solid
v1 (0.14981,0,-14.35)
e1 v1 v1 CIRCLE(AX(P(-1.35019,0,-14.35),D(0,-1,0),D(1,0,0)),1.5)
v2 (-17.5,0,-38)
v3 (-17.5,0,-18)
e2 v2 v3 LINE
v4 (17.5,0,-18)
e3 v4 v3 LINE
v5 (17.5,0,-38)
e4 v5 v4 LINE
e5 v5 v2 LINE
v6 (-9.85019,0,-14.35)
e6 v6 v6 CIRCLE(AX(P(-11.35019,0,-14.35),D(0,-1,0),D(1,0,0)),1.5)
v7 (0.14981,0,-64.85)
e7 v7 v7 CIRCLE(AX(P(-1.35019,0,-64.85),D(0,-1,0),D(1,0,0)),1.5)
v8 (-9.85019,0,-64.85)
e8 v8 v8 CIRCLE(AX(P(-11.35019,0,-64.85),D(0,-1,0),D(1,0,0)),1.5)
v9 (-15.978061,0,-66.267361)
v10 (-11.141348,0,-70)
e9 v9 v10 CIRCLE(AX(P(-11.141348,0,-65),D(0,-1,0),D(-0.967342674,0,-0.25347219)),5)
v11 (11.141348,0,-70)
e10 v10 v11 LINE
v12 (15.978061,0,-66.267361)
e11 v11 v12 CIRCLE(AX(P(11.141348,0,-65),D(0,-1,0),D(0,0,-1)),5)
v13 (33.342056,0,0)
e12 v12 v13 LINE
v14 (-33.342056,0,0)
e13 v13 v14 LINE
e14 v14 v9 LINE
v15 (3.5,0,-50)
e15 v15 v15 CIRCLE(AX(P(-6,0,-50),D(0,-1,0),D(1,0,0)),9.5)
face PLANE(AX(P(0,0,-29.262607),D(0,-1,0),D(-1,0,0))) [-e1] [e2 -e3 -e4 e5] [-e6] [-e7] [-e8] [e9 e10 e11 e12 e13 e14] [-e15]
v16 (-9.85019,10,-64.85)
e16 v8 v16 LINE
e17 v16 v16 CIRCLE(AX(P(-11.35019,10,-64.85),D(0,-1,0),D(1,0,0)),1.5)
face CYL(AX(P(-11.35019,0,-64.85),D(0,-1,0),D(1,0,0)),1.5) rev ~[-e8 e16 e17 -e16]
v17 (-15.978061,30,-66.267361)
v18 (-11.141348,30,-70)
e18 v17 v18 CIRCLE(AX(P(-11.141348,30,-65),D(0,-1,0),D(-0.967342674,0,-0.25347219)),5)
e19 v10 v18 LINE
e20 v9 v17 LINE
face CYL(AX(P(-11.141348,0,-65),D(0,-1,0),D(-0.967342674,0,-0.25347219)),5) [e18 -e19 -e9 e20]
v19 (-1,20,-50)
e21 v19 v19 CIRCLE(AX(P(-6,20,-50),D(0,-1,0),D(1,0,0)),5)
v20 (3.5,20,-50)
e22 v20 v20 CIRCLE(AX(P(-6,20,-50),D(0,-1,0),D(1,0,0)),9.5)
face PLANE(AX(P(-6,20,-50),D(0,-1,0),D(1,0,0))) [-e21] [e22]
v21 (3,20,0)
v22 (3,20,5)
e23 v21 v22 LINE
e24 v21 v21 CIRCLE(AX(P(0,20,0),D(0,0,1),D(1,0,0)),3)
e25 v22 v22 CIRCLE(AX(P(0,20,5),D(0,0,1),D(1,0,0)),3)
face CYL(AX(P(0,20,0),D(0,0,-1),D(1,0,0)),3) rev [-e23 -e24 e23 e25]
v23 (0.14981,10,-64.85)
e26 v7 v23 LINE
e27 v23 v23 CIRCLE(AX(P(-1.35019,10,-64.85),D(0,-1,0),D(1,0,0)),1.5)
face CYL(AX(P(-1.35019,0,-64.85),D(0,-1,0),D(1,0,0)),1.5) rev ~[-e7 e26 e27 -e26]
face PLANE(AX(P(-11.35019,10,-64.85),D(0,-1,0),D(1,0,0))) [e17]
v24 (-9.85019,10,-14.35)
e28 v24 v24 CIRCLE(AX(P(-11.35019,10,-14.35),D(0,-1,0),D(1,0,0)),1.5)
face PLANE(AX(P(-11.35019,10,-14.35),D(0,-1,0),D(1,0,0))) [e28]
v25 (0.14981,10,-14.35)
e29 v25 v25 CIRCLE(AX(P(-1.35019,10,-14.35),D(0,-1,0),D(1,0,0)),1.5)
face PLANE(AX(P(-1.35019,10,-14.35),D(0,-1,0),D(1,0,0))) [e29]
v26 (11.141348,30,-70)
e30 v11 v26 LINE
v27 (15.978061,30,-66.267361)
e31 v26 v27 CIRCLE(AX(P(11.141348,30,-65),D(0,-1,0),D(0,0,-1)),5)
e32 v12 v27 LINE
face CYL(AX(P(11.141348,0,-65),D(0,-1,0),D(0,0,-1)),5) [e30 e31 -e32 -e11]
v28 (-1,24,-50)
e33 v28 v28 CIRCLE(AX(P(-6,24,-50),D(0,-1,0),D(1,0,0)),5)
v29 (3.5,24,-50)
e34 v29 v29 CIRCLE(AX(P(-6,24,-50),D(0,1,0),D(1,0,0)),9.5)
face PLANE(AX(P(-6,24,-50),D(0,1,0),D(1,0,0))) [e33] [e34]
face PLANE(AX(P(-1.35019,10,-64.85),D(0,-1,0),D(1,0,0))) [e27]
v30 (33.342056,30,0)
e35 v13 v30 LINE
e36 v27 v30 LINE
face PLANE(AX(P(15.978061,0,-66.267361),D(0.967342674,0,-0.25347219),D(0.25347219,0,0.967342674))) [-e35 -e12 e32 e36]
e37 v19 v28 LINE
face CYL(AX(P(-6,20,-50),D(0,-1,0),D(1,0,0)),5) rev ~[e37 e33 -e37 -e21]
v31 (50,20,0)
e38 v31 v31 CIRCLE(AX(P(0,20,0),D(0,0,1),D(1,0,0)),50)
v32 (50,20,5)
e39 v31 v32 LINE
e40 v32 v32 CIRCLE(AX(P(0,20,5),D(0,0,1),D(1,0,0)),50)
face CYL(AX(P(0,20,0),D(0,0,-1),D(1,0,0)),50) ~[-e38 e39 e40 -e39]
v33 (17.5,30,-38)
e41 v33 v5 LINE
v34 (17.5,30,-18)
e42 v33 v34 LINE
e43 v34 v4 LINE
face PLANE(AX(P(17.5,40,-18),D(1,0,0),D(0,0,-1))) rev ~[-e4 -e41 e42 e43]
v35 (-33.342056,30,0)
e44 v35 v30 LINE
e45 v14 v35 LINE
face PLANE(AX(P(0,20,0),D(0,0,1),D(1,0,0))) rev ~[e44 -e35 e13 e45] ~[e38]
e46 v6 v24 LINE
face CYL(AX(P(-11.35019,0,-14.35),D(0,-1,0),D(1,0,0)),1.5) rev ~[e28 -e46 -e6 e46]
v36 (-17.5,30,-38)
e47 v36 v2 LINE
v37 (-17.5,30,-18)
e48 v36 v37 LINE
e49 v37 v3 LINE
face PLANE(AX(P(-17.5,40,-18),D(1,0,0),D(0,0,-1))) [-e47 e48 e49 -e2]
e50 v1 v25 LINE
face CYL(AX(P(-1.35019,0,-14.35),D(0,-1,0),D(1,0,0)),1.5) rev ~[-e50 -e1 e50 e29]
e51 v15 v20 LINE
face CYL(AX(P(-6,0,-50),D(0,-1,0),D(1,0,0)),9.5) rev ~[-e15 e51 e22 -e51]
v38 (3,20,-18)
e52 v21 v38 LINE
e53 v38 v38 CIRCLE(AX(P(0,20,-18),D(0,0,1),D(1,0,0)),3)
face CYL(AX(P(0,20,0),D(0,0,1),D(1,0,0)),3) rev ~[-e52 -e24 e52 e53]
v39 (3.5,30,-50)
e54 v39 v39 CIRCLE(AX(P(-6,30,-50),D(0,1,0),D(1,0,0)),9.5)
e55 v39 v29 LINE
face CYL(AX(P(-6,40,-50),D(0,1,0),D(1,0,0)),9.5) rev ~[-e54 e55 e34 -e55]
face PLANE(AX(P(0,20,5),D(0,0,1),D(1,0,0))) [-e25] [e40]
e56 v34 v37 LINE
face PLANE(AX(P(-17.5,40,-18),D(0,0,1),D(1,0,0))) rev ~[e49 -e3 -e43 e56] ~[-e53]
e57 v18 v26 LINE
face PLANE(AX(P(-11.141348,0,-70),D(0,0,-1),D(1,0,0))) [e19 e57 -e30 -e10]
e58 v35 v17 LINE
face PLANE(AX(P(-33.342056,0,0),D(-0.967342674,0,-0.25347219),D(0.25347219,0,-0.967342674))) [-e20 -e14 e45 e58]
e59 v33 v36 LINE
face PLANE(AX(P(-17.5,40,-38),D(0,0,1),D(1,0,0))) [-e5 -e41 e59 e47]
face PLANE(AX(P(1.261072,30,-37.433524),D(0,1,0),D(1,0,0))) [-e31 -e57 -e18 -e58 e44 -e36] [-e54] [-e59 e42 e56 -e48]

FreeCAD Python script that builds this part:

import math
import FreeCAD as App
import Part
import Sketcher
Q = App.Units.Quantity

doc = App.newDocument("Part")
body = doc.addObject("PartDesign::Body", "Body")

# Sketch on XZ plane
sketch1 = doc.addObject("Sketcher::SketchObject", "Sketch")
body.addObject(sketch1)
sketch1.AttachmentSupport = (doc.XZ_Plane, [""])
sketch1.MapMode = "FlatFace"
sketch1.addGeometry([
    Part.LineSegment(App.Vector(11, -70, 0), App.Vector(-11, -70, 0)),  # 0
    Part.ArcOfCircle(Part.Circle(App.Vector(-11, -65, 0), App.Vector(0, 0, 1), 5), math.radians(-165), math.radians(-90)),  # 1
    Part.LineSegment(App.Vector(-16, -66, 0), App.Vector(-33, 0, 0)),  # 2
    Part.LineSegment(App.Vector(-33, 0, 0), App.Vector(33, 0, 0)),  # 3
    Part.LineSegment(App.Vector(33, 0, 0), App.Vector(16, -66, 0)),  # 4
    Part.ArcOfCircle(Part.Circle(App.Vector(11, -65, 0), App.Vector(0, 0, 1), 5), math.radians(-90), math.radians(-15)),  # 5
], False)
sketch1.addConstraint([
    Sketcher.Constraint("Tangent", 0, 2, 1, 2),
    Sketcher.Constraint("Tangent", 1, 1, 2, 1),
    Sketcher.Constraint("Coincident", 2, 2, 3, 1),
    Sketcher.Constraint("Coincident", 3, 2, 4, 1),
    Sketcher.Constraint("Tangent", 4, 2, 5, 2),
    Sketcher.Constraint("Tangent", 5, 1, 0, 1),
    Sketcher.Constraint("Horizontal", 0),
    Sketcher.Constraint("Horizontal", 3),
    Sketcher.Constraint("Equal", 1, 5),
    Sketcher.Constraint("Symmetric", 2, 2, 3, 2, -1, 1),
    Sketcher.Constraint("Horizontal", 1, 1, 4, 2),
    Sketcher.Constraint("Radius", 1, Q("5 mm")),
    Sketcher.Constraint("DistanceY", 1, 3, -1, 1, Q("65 mm")),
    Sketcher.Constraint("DistanceX", 3, 1, 3, 2, Q("66.684112 mm")),
    Sketcher.Constraint("DistanceX", 0, 2, 0, 1, Q("22.282695 mm")),
])
pad1 = doc.addObject("PartDesign::Pad", "Pad")
body.addObject(pad1)
pad1.Profile = sketch1
pad1.Length = 40
pad1.Reversed = True

# Sketch on XZ plane
sketch2 = doc.addObject("Sketcher::SketchObject", "Sketch001")
body.addObject(sketch2)
sketch2.AttachmentSupport = (doc.XZ_Plane, [""])
sketch2.MapMode = "FlatFace"
sketch2.addGeometry(Part.Circle(App.Vector(-6, -50, 0), App.Vector(0, 0, 1), 10), False)
sketch2.addConstraint([
    Sketcher.Constraint("Diameter", 0, Q("19 mm")),
    Sketcher.Constraint("DistanceX", 0, 3, -1, 1, Q("6 mm")),
    Sketcher.Constraint("DistanceY", 0, 3, -1, 1, Q("50 mm")),
])
pocket1 = doc.addObject("PartDesign::Pocket", "Pocket")
body.addObject(pocket1)
pocket1.Profile = sketch2
pocket1.Length = 20

# Sketch on XZ plane
sketch3 = doc.addObject("Sketcher::SketchObject", "Sketch002")
body.addObject(sketch3)
sketch3.AttachmentSupport = (doc.XZ_Plane, [""])
sketch3.MapMode = "FlatFace"
sketch3.AttachmentOffset = App.Placement(App.Vector(0, 0, -20), App.Rotation())
sketch3.addGeometry(Part.Circle(App.Vector(-6, -50, 0), App.Vector(0, 0, 1), 5), False)
sketch3.addConstraint([
    Sketcher.Constraint("Diameter", 0, Q("10 mm")),
    Sketcher.Constraint("DistanceX", 0, 3, -1, 1, Q("6 mm")),
    Sketcher.Constraint("DistanceY", 0, 3, -1, 1, Q("50 mm")),
])
pocket2 = doc.addObject("PartDesign::Pocket", "Pocket001")
body.addObject(pocket2)
pocket2.Profile = sketch3
pocket2.Type = "ThroughAll"

# Sketch on XZ plane
sketch4 = doc.addObject("Sketcher::SketchObject", "Sketch003")
body.addObject(sketch4)
sketch4.AttachmentSupport = (doc.XZ_Plane, [""])
sketch4.MapMode = "FlatFace"
sketch4.AttachmentOffset = App.Placement(App.Vector(0, 0, -40), App.Rotation())
sketch4.addGeometry(Part.Circle(App.Vector(-6, -50, 0), App.Vector(0, 0, 1), 10), False)
sketch4.addConstraint([
    Sketcher.Constraint("Diameter", 0, Q("19 mm")),
    Sketcher.Constraint("DistanceX", 0, 3, -1, 1, Q("6 mm")),
    Sketcher.Constraint("DistanceY", 0, 3, -1, 1, Q("50 mm")),
])
pocket3 = doc.addObject("PartDesign::Pocket", "Pocket002")
body.addObject(pocket3)
pocket3.Profile = sketch4
pocket3.Length = 16
pocket3.Reversed = True

# Sketch on XZ plane
sketch5 = doc.addObject("Sketcher::SketchObject", "Sketch004")
body.addObject(sketch5)
sketch5.AttachmentSupport = (doc.XZ_Plane, [""])
sketch5.MapMode = "FlatFace"
sketch5.AttachmentOffset = App.Placement(App.Vector(0, 0, -40), App.Rotation())
sketch5.addGeometry([
    Part.LineSegment(App.Vector(-18, -38, 0), App.Vector(-18, -18, 0)),
    Part.LineSegment(App.Vector(-18, -18, 0), App.Vector(18, -18, 0)),
    Part.LineSegment(App.Vector(18, -18, 0), App.Vector(18, -38, 0)),
    Part.LineSegment(App.Vector(18, -38, 0), App.Vector(-18, -38, 0)),
], False)
sketch5.addConstraint([
    Sketcher.Constraint("Coincident", 0, 2, 1, 1),
    Sketcher.Constraint("Coincident", 1, 2, 2, 1),
    Sketcher.Constraint("Coincident", 2, 2, 3, 1),
    Sketcher.Constraint("Coincident", 3, 2, 0, 1),
    Sketcher.Constraint("Vertical", 0),
    Sketcher.Constraint("Horizontal", 1),
    Sketcher.Constraint("Vertical", 2),
    Sketcher.Constraint("Horizontal", 3),
    Sketcher.Constraint("DistanceX", 1, 1, 1, 2, Q("35 mm")),
    Sketcher.Constraint("DistanceY", 0, 1, 0, 2, Q("20 mm")),
    Sketcher.Constraint("DistanceY", 0, 2, -1, 1, Q("18 mm")),
    Sketcher.Constraint("DistanceX", 0, 2, -1, 1, Q("17.5 mm")),
])
pocket4 = doc.addObject("PartDesign::Pocket", "Pocket003")
body.addObject(pocket4)
pocket4.Profile = sketch5
pocket4.Type = "ThroughAll"
pocket4.Reversed = True

# Sketch on XY plane
sketch6 = doc.addObject("Sketcher::SketchObject", "Sketch005")
body.addObject(sketch6)
sketch6.AttachmentSupport = (doc.XY_Plane, [""])
sketch6.MapMode = "FlatFace"
sketch6.addGeometry(Part.Circle(App.Vector(0, 20, 0), App.Vector(0, 0, 1), 3), False)
sketch6.addConstraint([
    Sketcher.Constraint("PointOnObject", 0, 3, -2),
    Sketcher.Constraint("Diameter", 0, Q("6 mm")),
    Sketcher.Constraint("DistanceY", -1, 1, 0, 3, Q("20 mm")),
])
pocket5 = doc.addObject("PartDesign::Pocket", "Pocket004")
body.addObject(pocket5)
pocket5.Profile = sketch6
pocket5.Length = 25

# Sketch on XY plane
sketch7 = doc.addObject("Sketcher::SketchObject", "Sketch006")
body.addObject(sketch7)
sketch7.AttachmentSupport = (doc.XY_Plane, [""])
sketch7.MapMode = "FlatFace"
sketch7.addGeometry([
    Part.Circle(App.Vector(0, 20, 0), App.Vector(0, 0, 1), 50),
    Part.Circle(App.Vector(0, 20, 0), App.Vector(0, 0, 1), 3),
], False)
sketch7.addConstraint([
    Sketcher.Constraint("Coincident", 1, 3, 0, 3),
    Sketcher.Constraint("PointOnObject", 0, 3, -2),
    Sketcher.Constraint("Diameter", 0, Q("100 mm")),
    Sketcher.Constraint("Diameter", 1, Q("6 mm")),
    Sketcher.Constraint("DistanceY", -1, 1, 0, 3, Q("20 mm")),
])
pad2 = doc.addObject("PartDesign::Pad", "Pad001")
body.addObject(pad2)
pad2.Profile = sketch7
pad2.Length = 5

# Sketch on XZ plane
sketch8 = doc.addObject("Sketcher::SketchObject", "Sketch007")
body.addObject(sketch8)
sketch8.AttachmentSupport = (doc.XZ_Plane, [""])
sketch8.MapMode = "FlatFace"
sketch8.AttachmentOffset = App.Placement(App.Vector(0, 0, -40), App.Rotation())
sketch8.addGeometry([
    Part.LineSegment(App.Vector(-33, -75, 0), App.Vector(-33, 0, 0)),
    Part.LineSegment(App.Vector(-33, 0, 0), App.Vector(36, 0, 0)),
    Part.LineSegment(App.Vector(36, 0, 0), App.Vector(36, -75, 0)),
    Part.LineSegment(App.Vector(36, -75, 0), App.Vector(-33, -75, 0)),
], False)
sketch8.addConstraint([
    Sketcher.Constraint("Coincident", 0, 2, 1, 1),
    Sketcher.Constraint("Coincident", 1, 2, 2, 1),
    Sketcher.Constraint("Coincident", 2, 2, 3, 1),
    Sketcher.Constraint("Coincident", 3, 2, 0, 1),
    Sketcher.Constraint("Vertical", 0),
    Sketcher.Constraint("Horizontal", 1),
    Sketcher.Constraint("Vertical", 2),
    Sketcher.Constraint("Horizontal", 3),
    Sketcher.Constraint("PointOnObject", 0, 2, -1),
    Sketcher.Constraint("DistanceY", 0, 1, 0, 2, Q("74.867048 mm")),
    Sketcher.Constraint("DistanceX", -1, 1, 1, 2, Q("35.864199 mm")),
    Sketcher.Constraint("DistanceX", 1, 1, 1, 2, Q("69.206255 mm")),
])
pocket6 = doc.addObject("PartDesign::Pocket", "Pocket005")
body.addObject(pocket6)
pocket6.Profile = sketch8
pocket6.Length = 10
pocket6.Reversed = True

# Sketch on XZ plane
sketch9 = doc.addObject("Sketcher::SketchObject", "Sketch008")
body.addObject(sketch9)
sketch9.AttachmentSupport = (doc.XZ_Plane, [""])
sketch9.MapMode = "FlatFace"
sketch9.addGeometry([
    Part.Circle(App.Vector(-1.4, -64.8, 0), App.Vector(0, 0, 1), 1.5),
    Part.Circle(App.Vector(-11.4, -64.8, 0), App.Vector(0, 0, 1), 1.5),
], False)
sketch9.addConstraint([
    Sketcher.Constraint("Equal", 0, 1),
    Sketcher.Constraint("Horizontal", 0, 3, 1, 3),
    Sketcher.Constraint("Diameter", 0, Q("3 mm")),
    Sketcher.Constraint("DistanceX", 1, 3, 0, 3, Q("10 mm")),
    Sketcher.Constraint("DistanceY", 0, 3, -1, 1, Q("64.85 mm")),
    Sketcher.Constraint("DistanceX", 0, 3, -1, 1, Q("1.35019 mm")),
])
pocket7 = doc.addObject("PartDesign::Pocket", "Pocket006")
body.addObject(pocket7)
pocket7.Profile = sketch9
pocket7.Length = 10

# Sketch on XZ plane
sketch10 = doc.addObject("Sketcher::SketchObject", "Sketch009")
body.addObject(sketch10)
sketch10.AttachmentSupport = (doc.XZ_Plane, [""])
sketch10.MapMode = "FlatFace"
sketch10.addGeometry([
    Part.Circle(App.Vector(-11.4, -14.3, 0), App.Vector(0, 0, 1), 1.5),
    Part.Circle(App.Vector(-1.4, -14.3, 0), App.Vector(0, 0, 1), 1.5),
], False)
sketch10.addConstraint([
    Sketcher.Constraint("Equal", 0, 1),
    Sketcher.Constraint("Horizontal", 0, 3, 1, 3),
    Sketcher.Constraint("Diameter", 0, Q("3 mm")),
    Sketcher.Constraint("DistanceX", 0, 3, 1, 3, Q("10 mm")),
    Sketcher.Constraint("DistanceY", 0, 3, -1, 1, Q("14.35 mm")),
    Sketcher.Constraint("DistanceX", 0, 3, -1, 1, Q("11.35019 mm")),
])
pocket8 = doc.addObject("PartDesign::Pocket", "Pocket007")
body.addObject(pocket8)
pocket8.Profile = sketch10
pocket8.Length = 10

doc.recompute()
